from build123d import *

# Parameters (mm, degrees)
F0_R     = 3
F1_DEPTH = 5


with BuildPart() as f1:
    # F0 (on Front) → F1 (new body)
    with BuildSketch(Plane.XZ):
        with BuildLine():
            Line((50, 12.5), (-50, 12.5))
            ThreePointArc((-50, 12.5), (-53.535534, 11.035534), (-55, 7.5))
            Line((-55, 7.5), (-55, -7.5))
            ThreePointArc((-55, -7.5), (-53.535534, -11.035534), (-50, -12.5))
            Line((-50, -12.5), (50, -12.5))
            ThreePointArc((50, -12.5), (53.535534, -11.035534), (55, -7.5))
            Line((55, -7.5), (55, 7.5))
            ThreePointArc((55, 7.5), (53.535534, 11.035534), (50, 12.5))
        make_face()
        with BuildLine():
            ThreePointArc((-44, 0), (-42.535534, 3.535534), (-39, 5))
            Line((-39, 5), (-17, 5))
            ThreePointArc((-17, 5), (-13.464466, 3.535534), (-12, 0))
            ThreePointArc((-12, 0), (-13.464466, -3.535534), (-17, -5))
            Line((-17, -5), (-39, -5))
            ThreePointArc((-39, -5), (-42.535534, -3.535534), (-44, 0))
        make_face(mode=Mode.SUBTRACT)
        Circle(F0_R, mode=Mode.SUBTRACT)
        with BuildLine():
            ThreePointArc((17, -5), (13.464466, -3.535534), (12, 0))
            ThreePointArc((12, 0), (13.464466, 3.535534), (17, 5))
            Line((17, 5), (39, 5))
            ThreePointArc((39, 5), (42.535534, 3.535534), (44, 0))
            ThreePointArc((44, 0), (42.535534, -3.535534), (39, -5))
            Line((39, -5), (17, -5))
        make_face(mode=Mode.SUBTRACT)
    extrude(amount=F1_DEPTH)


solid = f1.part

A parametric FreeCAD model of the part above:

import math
import FreeCAD as App
import Part
import Sketcher

doc = App.newDocument("Part")
body = doc.addObject("PartDesign::Body", "Body")

# Sketch on XZ plane
sketch1 = body.newObject("Sketcher::SketchObject", "Sketch")
sketch1.AttachmentSupport = (doc.getObject("XZ_Plane"), [""])
sketch1.MapMode = "FlatFace"
sketch1.addGeometry([
    Part.LineSegment(App.Vector(50, 12.5, 0), App.Vector(-50, 12.5, 0)),  # 0
    Part.ArcOfCircle(Part.Circle(App.Vector(-50, 7.5, 0), App.Vector(0, 0, 1), 5), math.radians(90), math.radians(180)),  # 1
    Part.LineSegment(App.Vector(-55, 7.5, 0), App.Vector(-55, -7.5, 0)),  # 2
    Part.ArcOfCircle(Part.Circle(App.Vector(-50, -7.5, 0), App.Vector(0, 0, 1), 5), math.radians(180), math.radians(270)),  # 3
    Part.LineSegment(App.Vector(-50, -12.5, 0), App.Vector(50, -12.5, 0)),  # 4
    Part.ArcOfCircle(Part.Circle(App.Vector(50, -7.5, 0), App.Vector(0, 0, 1), 5), math.radians(-90), math.radians(0)),  # 5
    Part.LineSegment(App.Vector(55, -7.5, 0), App.Vector(55, 7.5, 0)),  # 6
    Part.ArcOfCircle(Part.Circle(App.Vector(50, 7.5, 0), App.Vector(0, 0, 1), 5), math.radians(0), math.radians(90)),  # 7
    Part.ArcOfCircle(Part.Circle(App.Vector(-39, 0, 0), App.Vector(0, 0, 1), 5), math.radians(180), math.radians(270)),  # 8
    Part.ArcOfCircle(Part.Circle(App.Vector(-39, 0, 0), App.Vector(0, 0, 1), 5), math.radians(90), math.radians(180)),  # 9
    Part.LineSegment(App.Vector(-39, 5, 0), App.Vector(-17, 5, 0)),  # 10
    Part.ArcOfCircle(Part.Circle(App.Vector(-17, 0, 0), App.Vector(0, 0, 1), 5), math.radians(0), math.radians(90)),  # 11
    Part.ArcOfCircle(Part.Circle(App.Vector(-17, 0, 0), App.Vector(0, 0, 1), 5), math.radians(-90), math.radians(0)),  # 12
    Part.LineSegment(App.Vector(-17, -5, 0), App.Vector(-39, -5, 0)),  # 13
    Part.Circle(App.Vector(0, 0, 0), App.Vector(0, 0, 1), 3),  # 14
    Part.LineSegment(App.Vector(39, -5, 0), App.Vector(17, -5, 0)),  # 15
    Part.ArcOfCircle(Part.Circle(App.Vector(17, 0, 0), App.Vector(0, 0, 1), 5), math.radians(180), math.radians(270)),  # 16
    Part.ArcOfCircle(Part.Circle(App.Vector(17, 0, 0), App.Vector(0, 0, 1), 5), math.radians(90), math.radians(180)),  # 17
    Part.LineSegment(App.Vector(17, 5, 0), App.Vector(39, 5, 0)),  # 18
    Part.ArcOfCircle(Part.Circle(App.Vector(39, 0, 0), App.Vector(0, 0, 1), 5), math.radians(0), math.radians(90)),  # 19
    Part.ArcOfCircle(Part.Circle(App.Vector(39, 0, 0), App.Vector(0, 0, 1), 5), math.radians(-90), math.radians(0)),  # 20
], False)
sketch1.addConstraint([
    Sketcher.Constraint("Tangent", 0, 2, 1, 1),
    Sketcher.Constraint("Tangent", 1, 2, 2, 1),
    Sketcher.Constraint("Tangent", 2, 2, 3, 1),
    Sketcher.Constraint("Tangent", 3, 2, 4, 1),
    Sketcher.Constraint("Tangent", 4, 2, 5, 1),
    Sketcher.Constraint("Tangent", 5, 2, 6, 1),
    Sketcher.Constraint("Tangent", 6, 2, 7, 1),
    Sketcher.Constraint("Tangent", 7, 2, 0, 1),
    Sketcher.Constraint("Tangent", 8, 1, 9, 2),
    Sketcher.Constraint("Tangent", 9, 1, 10, 1),
    Sketcher.Constraint("Tangent", 10, 2, 11, 2),
    Sketcher.Constraint("Tangent", 11, 1, 12, 2),
    Sketcher.Constraint("Tangent", 12, 1, 13, 1),
    Sketcher.Constraint("Tangent", 13, 2, 8, 2),
    Sketcher.Constraint("Tangent", 15, 2, 16, 2),
    Sketcher.Constraint("Tangent", 16, 1, 17, 2),
    Sketcher.Constraint("Tangent", 17, 1, 18, 1),
    Sketcher.Constraint("Tangent", 18, 2, 19, 2),
    Sketcher.Constraint("Tangent", 19, 1, 20, 2),
    Sketcher.Constraint("Tangent", 20, 1, 15, 1),
    Sketcher.Constraint("Horizontal", 0),
    Sketcher.Constraint("Vertical", 2),
    Sketcher.Constraint("Horizontal", 4),
    Sketcher.Constraint("Vertical", 6),
    Sketcher.Constraint("Horizontal", 10),
    Sketcher.Constraint("Horizontal", 13),
    Sketcher.Constraint("Horizontal", 15),
    Sketcher.Constraint("Horizontal", 18),
    Sketcher.Constraint("Coincident", 14, 3, -1, 1),
    Sketcher.Constraint("Equal", 1, 3),
    Sketcher.Constraint("Equal", 3, 5),
    Sketcher.Constraint("Equal", 5, 7),
    Sketcher.Constraint("Equal", 7, 8),
    Sketcher.Constraint("Equal", 8, 9),
    Sketcher.Constraint("Equal", 9, 11),
    Sketcher.Constraint("Equal", 12, 16),
    Sketcher.Constraint("Equal", 16, 17),
    Sketcher.Constraint("Equal", 17, 19),
    Sketcher.Constraint("Symmetric", 1, 3, 5, 3, -1, 1),
    Sketcher.Constraint("Symmetric", 11, 3, 16, 3, -1, 1),
    Sketcher.Constraint("Symmetric", 8, 1, 19, 1, -1, 1),
    Sketcher.Constraint("PointOnObject", 8, 3, -1),
    Sketcher.Constraint("PointOnObject", 8, 1, -1),
    Sketcher.Constraint("PointOnObject", 11, 1, -1),
    Sketcher.Constraint("PointOnObject", 16, 1, -1),
    Sketcher.Constraint("Diameter", 14, 6.0),
    Sketcher.Constraint("Radius", 1, 5.0),
    Sketcher.Constraint("DistanceX", 0, 2, 0, 1, 100.0),
    Sketcher.Constraint("DistanceX", 10, 1, 10, 2, 22.0),
    Sketcher.Constraint("DistanceY", 2, 2, 2, 1, 15.0),
    Sketcher.Constraint("DistanceX", 8, 3, -1, 1, 39.0),
])
pad1 = body.newObject("PartDesign::Pad", "Pad")
pad1.Profile = sketch1
pad1.Length = 5

doc.recompute()
